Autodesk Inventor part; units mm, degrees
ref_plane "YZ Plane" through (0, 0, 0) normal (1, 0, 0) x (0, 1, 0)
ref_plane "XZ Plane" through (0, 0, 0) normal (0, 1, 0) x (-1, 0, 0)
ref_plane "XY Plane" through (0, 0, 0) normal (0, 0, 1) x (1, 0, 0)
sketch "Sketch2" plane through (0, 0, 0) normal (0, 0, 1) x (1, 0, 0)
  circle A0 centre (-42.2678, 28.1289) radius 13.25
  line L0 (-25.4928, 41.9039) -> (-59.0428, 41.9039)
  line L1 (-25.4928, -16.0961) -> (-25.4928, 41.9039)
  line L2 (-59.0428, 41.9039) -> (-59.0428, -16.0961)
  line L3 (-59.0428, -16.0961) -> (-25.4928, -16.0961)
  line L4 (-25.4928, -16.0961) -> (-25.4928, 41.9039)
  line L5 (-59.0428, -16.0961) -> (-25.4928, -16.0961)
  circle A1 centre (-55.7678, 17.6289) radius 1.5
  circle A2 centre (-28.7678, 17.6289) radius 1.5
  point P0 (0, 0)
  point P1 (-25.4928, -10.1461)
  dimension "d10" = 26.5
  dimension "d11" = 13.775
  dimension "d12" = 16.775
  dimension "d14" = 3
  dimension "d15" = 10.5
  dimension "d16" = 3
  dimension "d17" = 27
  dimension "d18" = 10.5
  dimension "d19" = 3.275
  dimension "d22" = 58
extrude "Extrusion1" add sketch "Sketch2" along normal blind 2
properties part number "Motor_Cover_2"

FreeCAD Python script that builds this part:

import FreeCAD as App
import Part
import Sketcher

V = App.Vector

doc = App.newDocument("Part")
body = doc.addObject("PartDesign::Body", "Body")

sketch1 = body.newObject("Sketcher::SketchObject", "Sketch")
sketch1.AttachmentSupport = (doc.getObject("XY_Plane"), [""])
sketch1.MapMode = "FlatFace"
sketch1.addGeometry(Part.LineSegment(V(-25.5, -16.1, 0), V(-25.5, 41.9, 0)), False)
sketch1.addGeometry(Part.LineSegment(V(-25.5, 41.9, 0), V(-59, 41.9, 0)), False)
sketch1.addGeometry(Part.LineSegment(V(-59, 41.9, 0), V(-59, -16.1, 0)), False)
sketch1.addGeometry(Part.LineSegment(V(-59, -16.1, 0), V(-25.5, -16.1, 0)), False)
sketch1.addGeometry(Part.Circle(V(-55.8, 17.6, 0), V(0, 0, 1), 1.5), False)
sketch1.addGeometry(Part.Circle(V(-28.8, 17.6, 0), V(0, 0, 1), 1.5), False)
sketch1.addGeometry(Part.Circle(V(-42.3, 28.1, 0), V(0, 0, 1), 13.2), False)
sketch1.addConstraint(Sketcher.Constraint("Coincident", 0, 2, 1, 1))
sketch1.addConstraint(Sketcher.Constraint("Coincident", 1, 2, 2, 1))
sketch1.addConstraint(Sketcher.Constraint("Coincident", 2, 2, 3, 1))
sketch1.addConstraint(Sketcher.Constraint("Coincident", 3, 2, 0, 1))
sketch1.addConstraint(Sketcher.Constraint("Vertical", 0))
sketch1.addConstraint(Sketcher.Constraint("Horizontal", 1))
sketch1.addConstraint(Sketcher.Constraint("Vertical", 2))
sketch1.addConstraint(Sketcher.Constraint("Horizontal", 3))
sketch1.addConstraint(Sketcher.Constraint("Equal", 4, 5))
sketch1.addConstraint(Sketcher.Constraint("Horizontal", 4, 3, 5, 3))
sketch1.addConstraint(Sketcher.Constraint("Diameter", 4, 3.0))
sketch1.addConstraint(Sketcher.Constraint("Diameter", 6, 26.5))
sketch1.addConstraint(Sketcher.Constraint("DistanceY", 0, 1, 0, 2, 58.0))
sketch1.addConstraint(Sketcher.Constraint("DistanceX", 4, 3, 5, 3, 27.0))
sketch1.addConstraint(Sketcher.Constraint("DistanceY", 4, 3, 6, 3, 10.5))
sketch1.addConstraint(Sketcher.Constraint("DistanceX", 6, 3, 0, 2, 16.775))
sketch1.addConstraint(Sketcher.Constraint("DistanceY", 6, 3, 0, 2, 13.775))
sketch1.addConstraint(Sketcher.Constraint("DistanceX", 5, 3, 0, 2, 3.275))
sketch1.addConstraint(Sketcher.Constraint("DistanceX", 1, 2, 6, 3, 16.775))
sketch1.addConstraint(Sketcher.Constraint("DistanceY", -1, 1, 4, 3, 17.629))
sketch1.addConstraint(Sketcher.Constraint("DistanceX", 4, 3, -1, 1, 55.7678))
pad1 = body.newObject("PartDesign::Pad", "Pad")
pad1.Profile = sketch1
pad1.Length = 2

doc.recompute()
